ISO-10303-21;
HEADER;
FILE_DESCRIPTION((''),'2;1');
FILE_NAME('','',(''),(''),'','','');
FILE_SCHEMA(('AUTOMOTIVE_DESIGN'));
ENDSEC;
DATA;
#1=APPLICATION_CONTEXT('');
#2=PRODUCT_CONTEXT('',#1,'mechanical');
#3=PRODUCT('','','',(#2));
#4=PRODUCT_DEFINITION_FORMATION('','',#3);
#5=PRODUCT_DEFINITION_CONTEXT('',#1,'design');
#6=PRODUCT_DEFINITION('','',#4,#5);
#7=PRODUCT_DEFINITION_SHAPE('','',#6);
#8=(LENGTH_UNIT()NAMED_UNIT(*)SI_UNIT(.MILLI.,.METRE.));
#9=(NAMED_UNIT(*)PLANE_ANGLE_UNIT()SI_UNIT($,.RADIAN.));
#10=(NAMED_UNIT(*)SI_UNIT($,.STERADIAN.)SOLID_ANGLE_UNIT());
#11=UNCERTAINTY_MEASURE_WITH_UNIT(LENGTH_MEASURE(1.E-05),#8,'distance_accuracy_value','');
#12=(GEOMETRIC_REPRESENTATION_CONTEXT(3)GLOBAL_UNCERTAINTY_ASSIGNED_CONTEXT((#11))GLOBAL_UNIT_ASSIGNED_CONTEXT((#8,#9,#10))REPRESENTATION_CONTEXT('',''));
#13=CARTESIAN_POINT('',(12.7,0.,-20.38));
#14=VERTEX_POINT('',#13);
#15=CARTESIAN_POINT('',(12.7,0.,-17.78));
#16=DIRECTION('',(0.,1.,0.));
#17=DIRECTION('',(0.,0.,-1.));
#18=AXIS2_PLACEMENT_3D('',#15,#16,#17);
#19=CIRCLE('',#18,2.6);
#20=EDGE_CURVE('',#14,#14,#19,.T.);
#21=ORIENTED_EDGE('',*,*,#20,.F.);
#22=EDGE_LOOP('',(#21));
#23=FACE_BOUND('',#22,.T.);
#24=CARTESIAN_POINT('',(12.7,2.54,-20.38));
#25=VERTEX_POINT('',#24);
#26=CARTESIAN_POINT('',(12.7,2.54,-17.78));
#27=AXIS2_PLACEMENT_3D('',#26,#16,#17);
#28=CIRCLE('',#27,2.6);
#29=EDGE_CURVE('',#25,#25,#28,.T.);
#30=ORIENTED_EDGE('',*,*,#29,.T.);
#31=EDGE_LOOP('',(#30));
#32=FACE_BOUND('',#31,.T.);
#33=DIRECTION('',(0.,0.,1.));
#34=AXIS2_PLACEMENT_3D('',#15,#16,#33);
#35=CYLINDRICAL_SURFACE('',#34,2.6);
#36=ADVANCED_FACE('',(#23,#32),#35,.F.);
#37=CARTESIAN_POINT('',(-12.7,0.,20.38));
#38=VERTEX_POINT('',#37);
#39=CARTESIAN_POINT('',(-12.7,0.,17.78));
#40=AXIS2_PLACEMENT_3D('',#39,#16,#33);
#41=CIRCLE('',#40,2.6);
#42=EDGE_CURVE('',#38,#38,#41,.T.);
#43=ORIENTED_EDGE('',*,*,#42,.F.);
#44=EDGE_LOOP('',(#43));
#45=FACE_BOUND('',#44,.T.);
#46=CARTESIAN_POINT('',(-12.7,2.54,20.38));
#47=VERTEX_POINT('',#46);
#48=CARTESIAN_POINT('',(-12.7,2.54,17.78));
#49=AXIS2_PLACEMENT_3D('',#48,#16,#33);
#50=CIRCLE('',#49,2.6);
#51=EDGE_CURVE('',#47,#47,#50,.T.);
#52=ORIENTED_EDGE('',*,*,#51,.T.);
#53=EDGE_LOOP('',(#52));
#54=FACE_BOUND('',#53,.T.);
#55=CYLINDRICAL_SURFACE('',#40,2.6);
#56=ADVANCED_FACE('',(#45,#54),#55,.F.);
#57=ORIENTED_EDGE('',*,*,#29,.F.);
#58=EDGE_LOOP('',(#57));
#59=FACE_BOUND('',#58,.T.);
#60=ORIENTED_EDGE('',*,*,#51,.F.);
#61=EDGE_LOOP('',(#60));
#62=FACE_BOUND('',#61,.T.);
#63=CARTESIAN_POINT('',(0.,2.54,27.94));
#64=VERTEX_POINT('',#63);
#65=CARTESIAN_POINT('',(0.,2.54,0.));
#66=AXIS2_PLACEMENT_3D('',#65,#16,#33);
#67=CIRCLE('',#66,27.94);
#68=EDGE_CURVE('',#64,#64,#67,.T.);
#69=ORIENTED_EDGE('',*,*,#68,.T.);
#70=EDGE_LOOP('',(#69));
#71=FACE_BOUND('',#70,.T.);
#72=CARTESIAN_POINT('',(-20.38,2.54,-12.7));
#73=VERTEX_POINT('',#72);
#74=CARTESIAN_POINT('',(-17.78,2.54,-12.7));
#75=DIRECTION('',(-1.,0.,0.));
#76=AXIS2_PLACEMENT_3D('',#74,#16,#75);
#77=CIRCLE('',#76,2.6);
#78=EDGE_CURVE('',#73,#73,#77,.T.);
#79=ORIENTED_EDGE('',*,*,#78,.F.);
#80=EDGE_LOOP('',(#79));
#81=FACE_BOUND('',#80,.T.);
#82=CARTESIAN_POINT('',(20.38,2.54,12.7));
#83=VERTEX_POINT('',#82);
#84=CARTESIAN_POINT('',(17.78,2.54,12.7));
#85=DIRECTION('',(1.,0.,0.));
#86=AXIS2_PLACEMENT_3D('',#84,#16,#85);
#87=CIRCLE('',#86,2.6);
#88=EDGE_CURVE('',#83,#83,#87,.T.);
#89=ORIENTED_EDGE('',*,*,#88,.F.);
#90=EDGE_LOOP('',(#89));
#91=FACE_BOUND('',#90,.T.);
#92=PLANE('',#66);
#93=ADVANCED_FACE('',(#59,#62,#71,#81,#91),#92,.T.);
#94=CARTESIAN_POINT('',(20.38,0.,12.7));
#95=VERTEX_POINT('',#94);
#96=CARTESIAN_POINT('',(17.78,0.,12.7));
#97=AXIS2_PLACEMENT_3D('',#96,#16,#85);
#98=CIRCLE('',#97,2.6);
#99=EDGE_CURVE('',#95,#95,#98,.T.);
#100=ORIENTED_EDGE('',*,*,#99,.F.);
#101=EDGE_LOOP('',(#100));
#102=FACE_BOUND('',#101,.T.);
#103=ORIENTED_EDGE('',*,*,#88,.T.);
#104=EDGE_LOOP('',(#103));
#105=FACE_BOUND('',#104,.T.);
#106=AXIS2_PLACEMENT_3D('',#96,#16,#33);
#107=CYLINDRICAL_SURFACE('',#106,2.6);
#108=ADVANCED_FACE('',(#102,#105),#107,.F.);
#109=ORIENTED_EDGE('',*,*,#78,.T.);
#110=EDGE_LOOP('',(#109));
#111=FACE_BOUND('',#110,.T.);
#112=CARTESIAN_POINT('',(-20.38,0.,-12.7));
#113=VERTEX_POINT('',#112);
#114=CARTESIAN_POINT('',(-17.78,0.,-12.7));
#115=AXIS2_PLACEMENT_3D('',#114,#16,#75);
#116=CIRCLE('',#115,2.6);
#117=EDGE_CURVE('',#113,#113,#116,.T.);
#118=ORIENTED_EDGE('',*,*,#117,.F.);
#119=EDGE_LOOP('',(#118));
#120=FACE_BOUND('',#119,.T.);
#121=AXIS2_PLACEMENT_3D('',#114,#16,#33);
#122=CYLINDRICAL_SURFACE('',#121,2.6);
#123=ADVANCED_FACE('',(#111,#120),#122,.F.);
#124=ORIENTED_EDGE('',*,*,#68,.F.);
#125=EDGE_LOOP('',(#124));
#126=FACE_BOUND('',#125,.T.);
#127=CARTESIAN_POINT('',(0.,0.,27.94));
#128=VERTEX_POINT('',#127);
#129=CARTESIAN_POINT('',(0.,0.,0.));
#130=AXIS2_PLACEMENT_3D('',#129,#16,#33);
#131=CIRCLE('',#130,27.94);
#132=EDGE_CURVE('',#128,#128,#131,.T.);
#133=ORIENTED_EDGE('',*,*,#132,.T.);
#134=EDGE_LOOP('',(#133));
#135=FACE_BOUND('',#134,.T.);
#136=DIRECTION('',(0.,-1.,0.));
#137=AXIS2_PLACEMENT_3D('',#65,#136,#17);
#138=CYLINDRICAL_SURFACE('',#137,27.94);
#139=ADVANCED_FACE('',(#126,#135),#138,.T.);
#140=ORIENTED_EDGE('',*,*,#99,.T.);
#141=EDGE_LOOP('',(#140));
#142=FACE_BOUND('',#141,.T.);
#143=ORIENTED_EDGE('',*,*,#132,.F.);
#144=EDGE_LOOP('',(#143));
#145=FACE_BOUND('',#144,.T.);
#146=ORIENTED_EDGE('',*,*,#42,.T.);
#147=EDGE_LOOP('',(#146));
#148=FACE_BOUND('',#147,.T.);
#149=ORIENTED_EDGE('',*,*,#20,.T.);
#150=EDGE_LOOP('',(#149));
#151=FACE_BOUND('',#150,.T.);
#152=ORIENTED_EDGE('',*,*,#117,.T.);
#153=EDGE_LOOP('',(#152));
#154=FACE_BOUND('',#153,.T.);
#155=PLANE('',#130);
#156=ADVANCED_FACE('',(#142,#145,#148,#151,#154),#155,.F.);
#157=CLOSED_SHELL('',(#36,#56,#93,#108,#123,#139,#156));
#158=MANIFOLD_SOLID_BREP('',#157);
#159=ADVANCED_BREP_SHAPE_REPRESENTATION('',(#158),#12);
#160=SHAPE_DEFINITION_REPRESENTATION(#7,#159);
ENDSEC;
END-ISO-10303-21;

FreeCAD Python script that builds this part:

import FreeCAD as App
import Part
import Sketcher
Q = App.Units.Quantity

doc = App.newDocument("Part")
body = doc.addObject("PartDesign::Body", "Body")

# Sketch on XZ plane
sketch1 = doc.addObject("Sketcher::SketchObject", "Sketch")
body.addObject(sketch1)
sketch1.AttachmentSupport = (doc.XZ_Plane, [""])
sketch1.MapMode = "FlatFace"
sketch1.addGeometry(Part.Circle(App.Vector(0, 0, 0), App.Vector(0, 0, 1), 27.94), False)
sketch1.addConstraint([
    Sketcher.Constraint("Coincident", 0, 3, -1, 1),
    Sketcher.Constraint("Diameter", 0, Q("2.2 in")),
])
pad1 = doc.addObject("PartDesign::Pad", "Pad")
body.addObject(pad1)
pad1.Profile = sketch1
pad1.Length = Q("0.1 in")
pad1.Reversed = True

# Sketch on XZ plane
sketch2 = doc.addObject("Sketcher::SketchObject", "Sketch001")
body.addObject(sketch2)
sketch2.AttachmentSupport = (doc.XZ_Plane, [""])
sketch2.MapMode = "FlatFace"
sketch2.AttachmentOffset = App.Placement(App.Vector(0, 0, -0.1 * 25.4), App.Rotation())
sketch2.addGeometry(Part.Circle(App.Vector(-12.7, 17.78, 0), App.Vector(0, 0, 1), 2.6), False)
sketch2.addConstraint([
    Sketcher.Constraint("DistanceX", 0, 3, -1, 1, Q("0.5 in")),
    Sketcher.Constraint("DistanceY", -1, 1, 0, 3, Q("0.7 in")),
    Sketcher.Constraint("Diameter", 0, Q("5.2 mm")),
])
pocket1 = doc.addObject("PartDesign::Pocket", "Pocket")
body.addObject(pocket1)
pocket1.Profile = sketch2
pocket1.Type = "ThroughAll"
pocket1.Reversed = True
doc.recompute()

polarpattern = doc.addObject("PartDesign::PolarPattern", "PolarPattern")
body.addObject(polarpattern)
polarpattern.Originals = [pocket1]
polarpattern.Axis = (doc.Y_Axis, [""])
polarpattern.Angle = 360
polarpattern.Occurrences = 4
body.Tip = polarpattern

doc.recompute()
